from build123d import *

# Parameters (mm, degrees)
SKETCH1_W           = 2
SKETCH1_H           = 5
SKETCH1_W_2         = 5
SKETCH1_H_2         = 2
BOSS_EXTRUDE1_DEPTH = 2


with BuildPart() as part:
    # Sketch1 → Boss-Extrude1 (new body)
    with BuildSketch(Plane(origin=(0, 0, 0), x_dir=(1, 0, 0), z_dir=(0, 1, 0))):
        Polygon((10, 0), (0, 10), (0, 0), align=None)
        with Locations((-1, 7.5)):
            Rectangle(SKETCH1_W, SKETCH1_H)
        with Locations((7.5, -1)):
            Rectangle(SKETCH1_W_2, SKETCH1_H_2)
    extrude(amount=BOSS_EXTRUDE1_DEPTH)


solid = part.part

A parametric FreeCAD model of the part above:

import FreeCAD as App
import Part
import Sketcher

V = App.Vector

doc = App.newDocument("Part")
body = doc.addObject("PartDesign::Body", "Body")

# Sketch on XZ plane
sketch1 = body.newObject("Sketcher::SketchObject", "Sketch")
sketch1.AttachmentSupport = (doc.getObject("XZ_Plane"), [""])
sketch1.MapMode = "FlatFace"
sketch1.addGeometry([
    Part.LineSegment(V(10, 0, 0), V(0, -10, 0)),  # 0
    Part.LineSegment(V(0, -10, 0), V(-2, -10, 0)),  # 1
    Part.LineSegment(V(-2, -10, 0), V(-2, -5, 0)),  # 2
    Part.LineSegment(V(-2, -5, 0), V(0, -5, 0)),  # 3
    Part.LineSegment(V(0, -5, 0), V(0, 0, 0)),  # 4
    Part.LineSegment(V(0, 0, 0), V(5, 0, 0)),  # 5
    Part.LineSegment(V(5, 0, 0), V(5, 2, 0)),  # 6
    Part.LineSegment(V(5, 2, 0), V(10, 2, 0)),  # 7
    Part.LineSegment(V(10, 2, 0), V(10, 0, 0)),  # 8
], False)
sketch1.addConstraint([
    Sketcher.Constraint("Coincident", 0, 2, 1, 1),
    Sketcher.Constraint("Coincident", 1, 2, 2, 1),
    Sketcher.Constraint("Coincident", 2, 2, 3, 1),
    Sketcher.Constraint("Coincident", 3, 2, 4, 1),
    Sketcher.Constraint("Coincident", 4, 2, 5, 1),
    Sketcher.Constraint("Coincident", 5, 2, 6, 1),
    Sketcher.Constraint("Coincident", 6, 2, 7, 1),
    Sketcher.Constraint("Coincident", 7, 2, 8, 1),
    Sketcher.Constraint("Coincident", 8, 2, 0, 1),
    Sketcher.Constraint("Horizontal", 1),
    Sketcher.Constraint("Vertical", 2),
    Sketcher.Constraint("Horizontal", 3),
    Sketcher.Constraint("Vertical", 4),
    Sketcher.Constraint("Horizontal", 5),
    Sketcher.Constraint("Vertical", 6),
    Sketcher.Constraint("Horizontal", 7),
    Sketcher.Constraint("Vertical", 8),
    Sketcher.Constraint("Coincident", 4, 2, -1, 1),
    Sketcher.Constraint("PointOnObject", 0, 2, -2),
    Sketcher.Constraint("PointOnObject", 8, 2, -1),
    Sketcher.Constraint("Equal", 5, 7),
    Sketcher.Constraint("Equal", 7, 2),
    Sketcher.Constraint("Equal", 2, 4),
    Sketcher.Constraint("Equal", 3, 6),
    Sketcher.Constraint("DistanceX", 1, 2, 1, 1, 2.0),
    Sketcher.Constraint("DistanceX", 5, 1, 5, 2, 5.0),
])
pad1 = body.newObject("PartDesign::Pad", "Pad")
pad1.Profile = sketch1
pad1.Length = 2
pad1.Reversed = True

doc.recompute()
